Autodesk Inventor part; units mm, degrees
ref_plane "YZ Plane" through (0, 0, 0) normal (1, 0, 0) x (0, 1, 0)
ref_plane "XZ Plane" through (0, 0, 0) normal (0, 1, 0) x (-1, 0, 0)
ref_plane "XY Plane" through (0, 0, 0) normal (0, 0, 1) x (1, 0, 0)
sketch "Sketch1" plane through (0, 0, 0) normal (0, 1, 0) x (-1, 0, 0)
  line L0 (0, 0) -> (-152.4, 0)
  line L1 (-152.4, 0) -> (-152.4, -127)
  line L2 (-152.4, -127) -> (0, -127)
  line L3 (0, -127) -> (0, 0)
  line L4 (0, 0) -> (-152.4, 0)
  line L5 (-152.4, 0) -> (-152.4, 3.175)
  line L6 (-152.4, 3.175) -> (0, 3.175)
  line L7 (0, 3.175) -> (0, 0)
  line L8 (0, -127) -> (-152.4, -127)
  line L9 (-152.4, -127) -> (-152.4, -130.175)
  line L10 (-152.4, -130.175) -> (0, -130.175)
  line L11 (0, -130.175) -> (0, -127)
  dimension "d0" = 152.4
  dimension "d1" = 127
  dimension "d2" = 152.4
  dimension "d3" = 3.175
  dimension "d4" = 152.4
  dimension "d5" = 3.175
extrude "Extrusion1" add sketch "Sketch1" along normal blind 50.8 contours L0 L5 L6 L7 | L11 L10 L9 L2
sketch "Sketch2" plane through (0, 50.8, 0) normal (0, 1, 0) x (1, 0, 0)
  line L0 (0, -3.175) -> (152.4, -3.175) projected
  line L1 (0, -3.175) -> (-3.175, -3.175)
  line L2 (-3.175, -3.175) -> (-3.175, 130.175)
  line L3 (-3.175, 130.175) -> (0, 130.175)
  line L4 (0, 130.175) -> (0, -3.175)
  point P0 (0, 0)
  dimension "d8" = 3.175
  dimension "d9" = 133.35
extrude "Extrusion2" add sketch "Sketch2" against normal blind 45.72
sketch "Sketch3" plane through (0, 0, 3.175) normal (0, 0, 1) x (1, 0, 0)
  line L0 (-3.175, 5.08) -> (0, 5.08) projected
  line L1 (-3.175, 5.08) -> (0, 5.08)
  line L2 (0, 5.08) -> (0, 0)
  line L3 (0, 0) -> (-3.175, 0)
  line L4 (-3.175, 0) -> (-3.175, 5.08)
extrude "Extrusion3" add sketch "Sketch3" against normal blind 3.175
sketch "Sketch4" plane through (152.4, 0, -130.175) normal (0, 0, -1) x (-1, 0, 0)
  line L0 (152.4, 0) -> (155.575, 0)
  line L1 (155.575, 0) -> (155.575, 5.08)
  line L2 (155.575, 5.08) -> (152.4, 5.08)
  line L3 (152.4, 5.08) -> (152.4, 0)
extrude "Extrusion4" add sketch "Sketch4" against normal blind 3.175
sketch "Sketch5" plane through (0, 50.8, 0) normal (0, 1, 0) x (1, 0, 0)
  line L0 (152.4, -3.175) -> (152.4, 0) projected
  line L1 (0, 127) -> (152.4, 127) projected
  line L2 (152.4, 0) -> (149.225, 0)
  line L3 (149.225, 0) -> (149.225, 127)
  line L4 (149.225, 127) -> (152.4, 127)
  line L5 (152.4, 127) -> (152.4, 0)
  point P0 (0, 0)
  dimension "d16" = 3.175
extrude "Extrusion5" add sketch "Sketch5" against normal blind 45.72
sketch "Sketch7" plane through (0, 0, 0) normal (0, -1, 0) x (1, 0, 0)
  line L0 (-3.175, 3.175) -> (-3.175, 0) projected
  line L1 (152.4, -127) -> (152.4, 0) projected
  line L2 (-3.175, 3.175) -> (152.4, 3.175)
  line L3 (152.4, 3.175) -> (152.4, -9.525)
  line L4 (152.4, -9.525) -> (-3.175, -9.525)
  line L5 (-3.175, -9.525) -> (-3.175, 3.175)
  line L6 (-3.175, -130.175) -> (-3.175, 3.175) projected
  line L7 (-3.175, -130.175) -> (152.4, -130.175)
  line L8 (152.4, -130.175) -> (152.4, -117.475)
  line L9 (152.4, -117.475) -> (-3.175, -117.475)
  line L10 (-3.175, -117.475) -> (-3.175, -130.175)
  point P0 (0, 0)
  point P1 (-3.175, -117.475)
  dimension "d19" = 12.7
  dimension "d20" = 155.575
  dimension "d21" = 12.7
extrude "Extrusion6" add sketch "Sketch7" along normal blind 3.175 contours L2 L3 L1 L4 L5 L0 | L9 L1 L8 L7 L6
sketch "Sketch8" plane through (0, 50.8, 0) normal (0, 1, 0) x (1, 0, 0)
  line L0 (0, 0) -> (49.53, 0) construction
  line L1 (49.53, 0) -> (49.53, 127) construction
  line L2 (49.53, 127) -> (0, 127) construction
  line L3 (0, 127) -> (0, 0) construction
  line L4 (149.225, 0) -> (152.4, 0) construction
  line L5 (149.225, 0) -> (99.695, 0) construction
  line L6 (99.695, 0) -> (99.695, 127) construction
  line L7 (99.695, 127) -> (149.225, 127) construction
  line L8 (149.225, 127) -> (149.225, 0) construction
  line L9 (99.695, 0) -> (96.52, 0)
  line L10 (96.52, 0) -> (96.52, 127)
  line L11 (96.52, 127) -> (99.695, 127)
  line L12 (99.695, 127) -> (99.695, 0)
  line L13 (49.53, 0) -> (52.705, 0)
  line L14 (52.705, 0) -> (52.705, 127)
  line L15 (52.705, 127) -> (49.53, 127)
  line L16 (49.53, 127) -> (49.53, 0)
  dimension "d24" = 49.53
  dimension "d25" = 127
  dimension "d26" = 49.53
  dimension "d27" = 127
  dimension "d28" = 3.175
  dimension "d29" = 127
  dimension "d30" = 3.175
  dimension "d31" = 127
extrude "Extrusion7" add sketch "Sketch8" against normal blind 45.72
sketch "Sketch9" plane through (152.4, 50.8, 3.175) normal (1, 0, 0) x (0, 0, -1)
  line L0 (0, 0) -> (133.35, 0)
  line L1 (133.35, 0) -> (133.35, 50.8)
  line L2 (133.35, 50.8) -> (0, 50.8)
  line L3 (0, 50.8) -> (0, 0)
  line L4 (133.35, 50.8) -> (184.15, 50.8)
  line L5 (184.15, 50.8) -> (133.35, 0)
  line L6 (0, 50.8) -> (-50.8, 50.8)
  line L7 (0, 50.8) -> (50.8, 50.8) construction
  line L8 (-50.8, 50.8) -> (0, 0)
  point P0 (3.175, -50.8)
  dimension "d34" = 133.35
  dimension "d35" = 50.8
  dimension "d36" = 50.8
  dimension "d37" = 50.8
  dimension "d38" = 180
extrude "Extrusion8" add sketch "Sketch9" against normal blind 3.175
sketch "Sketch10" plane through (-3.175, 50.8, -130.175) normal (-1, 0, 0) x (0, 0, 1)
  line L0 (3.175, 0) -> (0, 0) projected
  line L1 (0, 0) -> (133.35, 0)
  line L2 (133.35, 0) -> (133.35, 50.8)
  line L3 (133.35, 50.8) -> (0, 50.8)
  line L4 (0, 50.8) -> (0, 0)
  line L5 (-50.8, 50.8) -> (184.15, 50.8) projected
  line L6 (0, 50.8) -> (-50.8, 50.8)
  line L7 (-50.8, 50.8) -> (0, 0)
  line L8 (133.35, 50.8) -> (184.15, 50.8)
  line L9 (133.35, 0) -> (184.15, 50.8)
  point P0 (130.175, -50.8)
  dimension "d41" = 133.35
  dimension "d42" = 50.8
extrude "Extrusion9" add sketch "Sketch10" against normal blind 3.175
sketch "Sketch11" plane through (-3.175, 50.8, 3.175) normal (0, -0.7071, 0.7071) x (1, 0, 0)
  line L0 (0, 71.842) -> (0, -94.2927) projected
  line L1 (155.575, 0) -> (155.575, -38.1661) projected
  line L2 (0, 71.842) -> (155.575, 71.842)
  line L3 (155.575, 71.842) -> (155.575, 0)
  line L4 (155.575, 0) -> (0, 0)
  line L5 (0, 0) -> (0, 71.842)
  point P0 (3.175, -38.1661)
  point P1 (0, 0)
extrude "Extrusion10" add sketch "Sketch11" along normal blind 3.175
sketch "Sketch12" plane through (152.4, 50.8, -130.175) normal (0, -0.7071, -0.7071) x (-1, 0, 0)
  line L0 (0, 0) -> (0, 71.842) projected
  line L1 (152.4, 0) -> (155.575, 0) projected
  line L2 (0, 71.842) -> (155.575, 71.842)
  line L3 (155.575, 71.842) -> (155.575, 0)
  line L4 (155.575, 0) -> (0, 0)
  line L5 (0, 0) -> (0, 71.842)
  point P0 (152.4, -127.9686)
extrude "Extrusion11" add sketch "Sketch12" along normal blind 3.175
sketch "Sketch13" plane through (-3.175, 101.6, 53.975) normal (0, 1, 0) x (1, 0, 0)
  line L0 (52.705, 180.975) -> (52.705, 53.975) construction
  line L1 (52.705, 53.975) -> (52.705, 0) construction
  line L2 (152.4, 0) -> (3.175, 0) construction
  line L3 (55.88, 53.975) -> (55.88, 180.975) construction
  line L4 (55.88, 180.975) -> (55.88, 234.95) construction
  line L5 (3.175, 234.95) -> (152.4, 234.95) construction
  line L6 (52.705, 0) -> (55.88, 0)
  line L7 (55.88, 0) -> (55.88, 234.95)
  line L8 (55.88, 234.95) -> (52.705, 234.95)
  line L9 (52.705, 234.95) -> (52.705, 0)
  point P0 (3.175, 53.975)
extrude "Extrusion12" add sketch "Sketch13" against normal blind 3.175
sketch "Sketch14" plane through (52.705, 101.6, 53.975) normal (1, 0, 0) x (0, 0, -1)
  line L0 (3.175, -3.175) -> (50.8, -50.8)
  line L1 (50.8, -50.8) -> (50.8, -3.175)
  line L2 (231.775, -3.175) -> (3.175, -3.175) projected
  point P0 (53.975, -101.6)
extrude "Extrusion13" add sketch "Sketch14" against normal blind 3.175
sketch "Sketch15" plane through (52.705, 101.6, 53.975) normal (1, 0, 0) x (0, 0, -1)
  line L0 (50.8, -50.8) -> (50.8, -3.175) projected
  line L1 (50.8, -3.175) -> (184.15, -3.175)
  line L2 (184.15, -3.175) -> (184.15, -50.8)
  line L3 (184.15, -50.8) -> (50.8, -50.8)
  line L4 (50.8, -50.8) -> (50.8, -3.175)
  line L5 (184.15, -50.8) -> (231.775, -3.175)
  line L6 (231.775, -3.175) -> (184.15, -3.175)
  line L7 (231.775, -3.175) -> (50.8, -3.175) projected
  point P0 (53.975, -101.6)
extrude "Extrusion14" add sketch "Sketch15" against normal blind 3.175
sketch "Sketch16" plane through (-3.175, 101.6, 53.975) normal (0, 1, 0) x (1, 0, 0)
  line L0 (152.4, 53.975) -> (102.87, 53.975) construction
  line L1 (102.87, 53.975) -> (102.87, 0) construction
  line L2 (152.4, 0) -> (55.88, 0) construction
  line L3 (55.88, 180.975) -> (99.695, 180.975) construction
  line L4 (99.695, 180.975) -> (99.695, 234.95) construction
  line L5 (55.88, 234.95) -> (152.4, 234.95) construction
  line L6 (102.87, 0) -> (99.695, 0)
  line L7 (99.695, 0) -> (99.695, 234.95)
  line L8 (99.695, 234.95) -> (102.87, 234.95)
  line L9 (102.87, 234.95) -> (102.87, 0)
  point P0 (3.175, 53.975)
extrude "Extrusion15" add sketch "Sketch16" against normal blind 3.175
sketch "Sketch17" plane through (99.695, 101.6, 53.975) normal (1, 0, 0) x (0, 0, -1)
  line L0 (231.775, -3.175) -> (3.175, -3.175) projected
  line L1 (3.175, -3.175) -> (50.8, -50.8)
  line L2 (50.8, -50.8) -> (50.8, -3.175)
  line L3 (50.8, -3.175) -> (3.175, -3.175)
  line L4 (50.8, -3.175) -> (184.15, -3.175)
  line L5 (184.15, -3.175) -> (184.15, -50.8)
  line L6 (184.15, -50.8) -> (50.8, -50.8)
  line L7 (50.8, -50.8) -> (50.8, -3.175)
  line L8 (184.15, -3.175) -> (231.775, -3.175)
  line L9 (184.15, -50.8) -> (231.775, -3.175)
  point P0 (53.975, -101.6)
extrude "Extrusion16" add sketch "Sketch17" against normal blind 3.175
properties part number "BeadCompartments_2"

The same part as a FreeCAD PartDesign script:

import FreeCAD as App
import Part
import Sketcher
Q = App.Units.Quantity


def add_polygon(sketch, points):
    """Adds a closed chain of lines whose ends are joined by coincident constraints."""
    first, n = sketch.GeometryCount, len(points)
    for a, b in zip(points, points[1:] + points[:1]):
        sketch.addGeometry(Part.LineSegment(App.Vector(*a, 0), App.Vector(*b, 0)), False)
    for i in range(n):
        sketch.addConstraint(Sketcher.Constraint("Coincident", first + i, 2, first + (i + 1) % n, 1))

doc = App.newDocument("Part")
body = doc.addObject("PartDesign::Body", "Body")
body.AllowCompound = True

# Sketch on XZ plane
sketch1 = body.newObject("Sketcher::SketchObject", "Sketch")
sketch1.AttachmentSupport = (doc.getObject("XZ_Plane"), [""])
sketch1.MapMode = "FlatFace"
add_polygon(sketch1, [(152.4, 0), (0, 0), (0, 3.2), (152.4, 3.2)])  # lines 0-3
add_polygon(sketch1, [(0, -130.2), (0, -127), (152.4, -127), (152.4, -130.2)])  # lines 4-7
sketch1.addConstraint([
    Sketcher.Constraint("Horizontal", 0),
    Sketcher.Constraint("Vertical", 1),
    Sketcher.Constraint("Horizontal", 2),
    Sketcher.Constraint("Vertical", 3),
    Sketcher.Constraint("Vertical", 4),
    Sketcher.Constraint("Horizontal", 5),
    Sketcher.Constraint("Vertical", 6),
    Sketcher.Constraint("Horizontal", 7),
    Sketcher.Constraint("Coincident", 0, 2, -1, 1),
    Sketcher.Constraint("PointOnObject", 4, 2, -2),
    Sketcher.Constraint("Vertical", 3, 2, 5, 2),
    Sketcher.Constraint("Equal", 3, 4),
    Sketcher.Constraint("DistanceX", 0, 2, 0, 1, Q("6 in")),
    Sketcher.Constraint("DistanceY", 4, 2, -1, 1, Q("5 in")),
    Sketcher.Constraint("DistanceY", 1, 1, 1, 2, Q("0.125 in")),
])
pad1 = body.newObject("PartDesign::Pad", "Pad")
pad1.Profile = sketch1
pad1.Length = Q("2 in")
pad1.Reversed = True

# Sketch on XZ plane
sketch2 = body.newObject("Sketcher::SketchObject", "Sketch001")
sketch2.AttachmentSupport = (doc.getObject("XZ_Plane"), [""])
sketch2.MapMode = "FlatFace"
sketch2.AttachmentOffset = App.Placement(App.Vector(0, 0, -2 * 25.4), App.Rotation())
add_polygon(sketch2, [(-3.2, 3.2), (0, 3.2), (0, -130.2), (-3.2, -130.2)])  # lines 0-3
sketch2.addConstraint([
    Sketcher.Constraint("Horizontal", 0),
    Sketcher.Constraint("Vertical", 1),
    Sketcher.Constraint("Horizontal", 2),
    Sketcher.Constraint("Vertical", 3),
    Sketcher.Constraint("PointOnObject", 0, 2, -2),
    Sketcher.Constraint("DistanceY", 1, 2, 1, 1, Q("5.25 in")),
    Sketcher.Constraint("DistanceX", 0, 1, 0, 2, Q("0.125 in")),
    Sketcher.Constraint("DistanceY", -1, 1, 0, 2, Q("0.125 in")),
])
pad2 = body.newObject("PartDesign::Pad", "Pad001")
pad2.Profile = sketch2
pad2.Length = Q("1.8 in")

# Sketch on XY plane
sketch3 = body.newObject("Sketcher::SketchObject", "Sketch002")
sketch3.AttachmentSupport = (doc.getObject("XY_Plane"), [""])
sketch3.MapMode = "FlatFace"
sketch3.AttachmentOffset = App.Placement(App.Vector(0, 0, 0.125 * 25.4), App.Rotation())
add_polygon(sketch3, [(0, 5.1), (-3.2, 5.1), (-3.2, 0), (0, 0)])  # lines 0-3
sketch3.addConstraint([
    Sketcher.Constraint("Horizontal", 0),
    Sketcher.Constraint("Vertical", 1),
    Sketcher.Constraint("Horizontal", 2),
    Sketcher.Constraint("Vertical", 3),
    Sketcher.Constraint("Coincident", 2, 2, -1, 1),
    Sketcher.Constraint("DistanceY", 1, 2, 1, 1, Q("0.2 in")),
    Sketcher.Constraint("DistanceX", 0, 2, 0, 1, Q("0.125 in")),
])
pad3 = body.newObject("PartDesign::Pad", "Pad002")
pad3.Profile = sketch3
pad3.Length = Q("0.125 in")
pad3.Reversed = True

# Sketch on XY plane
sketch4 = body.newObject("Sketcher::SketchObject", "Sketch003")
sketch4.AttachmentSupport = (doc.getObject("XY_Plane"), [""])
sketch4.MapMode = "FlatFace"
sketch4.AttachmentOffset = App.Placement(App.Vector(0, 0, -5.125 * 25.4), App.Rotation())
add_polygon(sketch4, [(0, 5.1), (0, 0), (-3.2, 0), (-3.2, 5.1)])  # lines 0-3
sketch4.addConstraint([
    Sketcher.Constraint("Vertical", 0),
    Sketcher.Constraint("Horizontal", 1),
    Sketcher.Constraint("Vertical", 2),
    Sketcher.Constraint("Horizontal", 3),
    Sketcher.Constraint("Coincident", 0, 2, -1, 1),
    Sketcher.Constraint("DistanceY", 0, 2, 0, 1, Q("0.2 in")),
    Sketcher.Constraint("DistanceX", 1, 2, 1, 1, Q("0.125 in")),
])
pad4 = body.newObject("PartDesign::Pad", "Pad003")
pad4.Profile = sketch4
pad4.Length = Q("0.125 in")

# Sketch on XZ plane
sketch5 = body.newObject("Sketcher::SketchObject", "Sketch004")
sketch5.AttachmentSupport = (doc.getObject("XZ_Plane"), [""])
sketch5.MapMode = "FlatFace"
sketch5.AttachmentOffset = App.Placement(App.Vector(0, 0, -2 * 25.4), App.Rotation())
add_polygon(sketch5, [(152.4, -127), (149.2, -127), (149.2, 0), (152.4, 0)])  # lines 0-3
sketch5.addConstraint([
    Sketcher.Constraint("Horizontal", 0),
    Sketcher.Constraint("Vertical", 1),
    Sketcher.Constraint("Horizontal", 2),
    Sketcher.Constraint("Vertical", 3),
    Sketcher.Constraint("PointOnObject", 1, 2, -1),
    Sketcher.Constraint("DistanceX", 0, 2, 0, 1, Q("0.125 in")),
    Sketcher.Constraint("DistanceY", 1, 1, 1, 2, Q("5 in")),
    Sketcher.Constraint("DistanceX", -1, 1, 2, 2, Q("6 in")),
])
pad5 = body.newObject("PartDesign::Pad", "Pad004")
pad5.Profile = sketch5
pad5.Length = Q("1.8 in")

# Sketch on XZ plane
sketch6 = body.newObject("Sketcher::SketchObject", "Sketch005")
sketch6.AttachmentSupport = (doc.getObject("XZ_Plane"), [""])
sketch6.MapMode = "FlatFace"
add_polygon(sketch6, [(152, 3), (-3, 3), (-3, -10), (152, -10)])  # lines 0-3
add_polygon(sketch6, [(152, -117), (-3, -117), (-3, -130), (152, -130)])  # lines 4-7
sketch6.addConstraint([
    Sketcher.Constraint("Horizontal", 0),
    Sketcher.Constraint("Vertical", 1),
    Sketcher.Constraint("Horizontal", 2),
    Sketcher.Constraint("Vertical", 3),
    Sketcher.Constraint("Horizontal", 4),
    Sketcher.Constraint("Vertical", 5),
    Sketcher.Constraint("Horizontal", 6),
    Sketcher.Constraint("Vertical", 7),
    Sketcher.Constraint("Vertical", 1, 2, 4, 2),
    Sketcher.Constraint("Vertical", 3, 2, 6, 2),
    Sketcher.Constraint("Equal", 3, 5),
    Sketcher.Constraint("DistanceY", 1, 2, 1, 1, Q("0.5 in")),
    Sketcher.Constraint("DistanceX", 0, 2, 0, 1, Q("6.125 in")),
    Sketcher.Constraint("DistanceX", -1, 1, 2, 2, Q("6 in")),
    Sketcher.Constraint("DistanceY", 4, 2, 1, 2, Q("4.25 in")),
    Sketcher.Constraint("DistanceY", -1, 1, 0, 2, Q("0.125 in")),
])
pad6 = body.newObject("PartDesign::Pad", "Pad005")
pad6.Profile = sketch6
pad6.Length = Q("0.125 in")

# Sketch on XZ plane
sketch7 = body.newObject("Sketcher::SketchObject", "Sketch006")
sketch7.AttachmentSupport = (doc.getObject("XZ_Plane"), [""])
sketch7.MapMode = "FlatFace"
sketch7.AttachmentOffset = App.Placement(App.Vector(0, 0, -2 * 25.4), App.Rotation())
add_polygon(sketch7, [(96.5, 0), (99.7, 0), (99.7, -127), (96.5, -127)])  # lines 0-3
add_polygon(sketch7, [(49.5, -127), (49.5, 0), (52.7, 0), (52.7, -127)])  # lines 4-7
sketch7.addConstraint([
    Sketcher.Constraint("Horizontal", 0),
    Sketcher.Constraint("Vertical", 1),
    Sketcher.Constraint("Horizontal", 2),
    Sketcher.Constraint("Vertical", 3),
    Sketcher.Constraint("Vertical", 4),
    Sketcher.Constraint("Horizontal", 5),
    Sketcher.Constraint("Vertical", 6),
    Sketcher.Constraint("Horizontal", 7),
    Sketcher.Constraint("PointOnObject", 0, 2, -1),
    Sketcher.Constraint("PointOnObject", 4, 2, -1),
    Sketcher.Constraint("Horizontal", 2, 2, 6, 2),
    Sketcher.Constraint("Equal", 2, 5),
    Sketcher.Constraint("DistanceY", 1, 2, 1, 1, Q("5 in")),
    Sketcher.Constraint("DistanceX", 0, 1, 0, 2, Q("0.125 in")),
    Sketcher.Constraint("DistanceX", -1, 1, 4, 2, Q("1.95 in")),
    Sketcher.Constraint("DistanceX", -1, 1, 2, 2, Q("3.8 in")),
])
pad7 = body.newObject("PartDesign::Pad", "Pad006")
pad7.Profile = sketch7
pad7.Length = Q("1.8 in")

# Sketch on YZ plane
sketch8 = body.newObject("Sketcher::SketchObject", "Sketch007")
sketch8.AttachmentSupport = (doc.getObject("YZ_Plane"), [""])
sketch8.MapMode = "FlatFace"
sketch8.AttachmentOffset = App.Placement(App.Vector(0, 0, 6 * 25.4), App.Rotation())
add_polygon(sketch8, [(102, 54), (51, 3), (51, -130), (102, -181)])  # lines 0-3
sketch8.addConstraint([
    Sketcher.Constraint("Vertical", 1),
    Sketcher.Constraint("Vertical", 3),
    Sketcher.Constraint("Perpendicular", 0, 2),
    Sketcher.Constraint("Equal", 0, 2),
    Sketcher.Constraint("DistanceX", -1, 1, 0, 2, Q("2 in")),
    Sketcher.Constraint("DistanceX", 1, 2, 2, 2, Q("2 in")),
    Sketcher.Constraint("DistanceY", 1, 2, 1, 1, Q("5.25 in")),
    Sketcher.Constraint("DistanceY", -1, 1, 0, 2, Q("0.125 in")),
])
pad8 = body.newObject("PartDesign::Pad", "Pad007")
pad8.Profile = sketch8
pad8.Length = Q("0.125 in")
pad8.Reversed = True

# Sketch on YZ plane
sketch9 = body.newObject("Sketcher::SketchObject", "Sketch008")
sketch9.AttachmentSupport = (doc.getObject("YZ_Plane"), [""])
sketch9.MapMode = "FlatFace"
sketch9.AttachmentOffset = App.Placement(App.Vector(0, 0, -0.125 * 25.4), App.Rotation())
add_polygon(sketch9, [(51, -130), (51, 3), (102, 54), (102, -181)])  # lines 0-3
sketch9.addConstraint([
    Sketcher.Constraint("Vertical", 0),
    Sketcher.Constraint("Vertical", 2),
    Sketcher.Constraint("Perpendicular", 1, 3),
    Sketcher.Constraint("Equal", 1, 3),
    Sketcher.Constraint("DistanceX", -1, 1, 0, 2, Q("2 in")),
    Sketcher.Constraint("DistanceX", 0, 2, 1, 2, Q("2 in")),
    Sketcher.Constraint("DistanceY", 0, 1, 0, 2, Q("5.25 in")),
    Sketcher.Constraint("DistanceY", -1, 1, 0, 2, Q("0.125 in")),
])
pad9 = body.newObject("PartDesign::Pad", "Pad008")
pad9.Profile = sketch9
pad9.Length = Q("0.125 in")

# Sketch on an angled plane
sketch10 = body.newObject("Sketcher::SketchObject", "Sketch009")
sketch10.Placement = App.Placement(App.Vector(-3.175, 50.8, 3.175), App.Rotation(App.Vector(1, 0, 0), App.Vector(0, 0.707106781, 0.707106781), App.Vector(0, -0.707106781, 0.707106781), "ZXY"))
add_polygon(sketch10, [(156, 72), (0, 72), (0, 0), (156, 0)])  # lines 0-3
sketch10.addConstraint([
    Sketcher.Constraint("Horizontal", 0),
    Sketcher.Constraint("Vertical", 1),
    Sketcher.Constraint("Horizontal", 2),
    Sketcher.Constraint("Vertical", 3),
    Sketcher.Constraint("Coincident", 1, 2, -1, 1),
    Sketcher.Constraint("DistanceX", 0, 2, 0, 1, Q("6.125 in")),
    Sketcher.Constraint("DistanceY", 1, 2, 1, 1, 71.842),
])
pad10 = body.newObject("PartDesign::Pad", "Pad009")
pad10.Profile = sketch10
pad10.Length = Q("0.125 in")

# Sketch on an angled plane
sketch11 = body.newObject("Sketcher::SketchObject", "Sketch010")
sketch11.Placement = App.Placement(App.Vector(152.4, 50.8, -130.175), App.Rotation(App.Vector(-1, 0, 0), App.Vector(0, 0.707106781, -0.707106781), App.Vector(0, -0.707106781, -0.707106781), "ZXY"))
add_polygon(sketch11, [(0, 72), (0, 0), (156, 0), (156, 72)])  # lines 0-3
sketch11.addConstraint([
    Sketcher.Constraint("Vertical", 0),
    Sketcher.Constraint("Horizontal", 1),
    Sketcher.Constraint("Vertical", 2),
    Sketcher.Constraint("Horizontal", 3),
    Sketcher.Constraint("Coincident", 0, 2, -1, 1),
    Sketcher.Constraint("DistanceX", 1, 1, 1, 2, Q("6.125 in")),
    Sketcher.Constraint("DistanceY", 0, 2, 0, 1, 71.842),
])
pad11 = body.newObject("PartDesign::Pad", "Pad010")
pad11.Profile = sketch11
pad11.Length = Q("0.125 in")

# Sketch on XZ plane
sketch12 = body.newObject("Sketcher::SketchObject", "Sketch011")
sketch12.AttachmentSupport = (doc.getObject("XZ_Plane"), [""])
sketch12.MapMode = "FlatFace"
sketch12.AttachmentOffset = App.Placement(App.Vector(0, 0, -4 * 25.4), App.Rotation())
add_polygon(sketch12, [(49.5, -181), (49.5, 54), (52.7, 54), (52.7, -181)])  # lines 0-3
sketch12.addConstraint([
    Sketcher.Constraint("Vertical", 0),
    Sketcher.Constraint("Horizontal", 1),
    Sketcher.Constraint("Vertical", 2),
    Sketcher.Constraint("Horizontal", 3),
    Sketcher.Constraint("DistanceY", 0, 1, 0, 2, Q("9.25 in")),
    Sketcher.Constraint("DistanceX", 1, 1, 1, 2, Q("0.125 in")),
    Sketcher.Constraint("DistanceX", -1, 1, 0, 2, Q("1.95 in")),
    Sketcher.Constraint("DistanceY", -1, 1, 0, 2, Q("2.125 in")),
])
pad12 = body.newObject("PartDesign::Pad", "Pad011")
pad12.Profile = sketch12
pad12.Length = Q("0.125 in")

# Sketch on YZ plane
sketch13 = body.newObject("Sketcher::SketchObject", "Sketch012")
sketch13.AttachmentSupport = (doc.getObject("YZ_Plane"), [""])
sketch13.MapMode = "FlatFace"
sketch13.AttachmentOffset = App.Placement(App.Vector(0, 0, 2.075 * 25.4), App.Rotation())
add_polygon(sketch13, [(98, 3), (98, 51), (51, 3)])  # lines 0-2
sketch13.addConstraint([
    Sketcher.Constraint("Vertical", 0),
    Sketcher.Constraint("Horizontal", 2),
    Sketcher.Constraint("Equal", 2, 0),
    Sketcher.Constraint("DistanceY", -1, 1, 0, 2, Q("2 in")),
    Sketcher.Constraint("DistanceX", -1, 1, 1, 2, Q("2 in")),
    Sketcher.Constraint("DistanceX", 2, 1, 2, 2, Q("1.875 in")),
])
pad13 = body.newObject("PartDesign::Pad", "Pad012")
pad13.Profile = sketch13
pad13.Length = Q("0.125 in")
pad13.Reversed = True

# Sketch on YZ plane
sketch14 = body.newObject("Sketcher::SketchObject", "Sketch013")
sketch14.AttachmentSupport = (doc.getObject("YZ_Plane"), [""])
sketch14.MapMode = "FlatFace"
sketch14.AttachmentOffset = App.Placement(App.Vector(0, 0, 2.075 * 25.4), App.Rotation())
add_polygon(sketch14, [(98, 3), (51, 3), (51, -130), (98, -178)])  # lines 0-3
sketch14.addConstraint([
    Sketcher.Constraint("Horizontal", 0),
    Sketcher.Constraint("Vertical", 1),
    Sketcher.Constraint("Vertical", 3),
    Sketcher.Constraint("DistanceX", -1, 1, 0, 2, Q("2 in")),
    Sketcher.Constraint("DistanceY", 2, 2, -1, 1, Q("7 in")),
    Sketcher.Constraint("Angle", 2, Q("-45 deg")),
    Sketcher.Constraint("DistanceY", 1, 2, 1, 1, Q("5.25 in")),
    Sketcher.Constraint("DistanceX", 0, 2, 0, 1, Q("1.875 in")),
])
pad14 = body.newObject("PartDesign::Pad", "Pad013")
pad14.Profile = sketch14
pad14.Length = Q("0.125 in")
pad14.Reversed = True

# Sketch on XZ plane
sketch15 = body.newObject("Sketcher::SketchObject", "Sketch014")
sketch15.AttachmentSupport = (doc.getObject("XZ_Plane"), [""])
sketch15.MapMode = "FlatFace"
sketch15.AttachmentOffset = App.Placement(App.Vector(0, 0, -4 * 25.4), App.Rotation())
add_polygon(sketch15, [(96.5, 54), (99.7, 54), (99.7, -181), (96.5, -181)])  # lines 0-3
sketch15.addConstraint([
    Sketcher.Constraint("Horizontal", 0),
    Sketcher.Constraint("Vertical", 1),
    Sketcher.Constraint("Horizontal", 2),
    Sketcher.Constraint("Vertical", 3),
    Sketcher.Constraint("DistanceY", 1, 2, 1, 1, Q("9.25 in")),
    Sketcher.Constraint("DistanceX", -1, 1, 2, 2, Q("3.8 in")),
    Sketcher.Constraint("DistanceX", 0, 1, 0, 2, Q("0.125 in")),
    Sketcher.Constraint("DistanceY", -1, 1, 0, 2, Q("2.125 in")),
])
pad15 = body.newObject("PartDesign::Pad", "Pad014")
pad15.Profile = sketch15
pad15.Length = Q("0.125 in")

# Sketch on YZ plane
sketch16 = body.newObject("Sketcher::SketchObject", "Sketch015")
sketch16.AttachmentSupport = (doc.getObject("YZ_Plane"), [""])
sketch16.MapMode = "FlatFace"
sketch16.AttachmentOffset = App.Placement(App.Vector(0, 0, 3.925 * 25.4), App.Rotation())
add_polygon(sketch16, [(51, -130), (98, -178), (98, 51), (51, 3)])  # lines 0-3
sketch16.addConstraint([
    Sketcher.Constraint("Vertical", 1),
    Sketcher.Constraint("Vertical", 3),
    Sketcher.Constraint("Perpendicular", 0, 2),
    Sketcher.Constraint("Equal", 0, 2),
    Sketcher.Constraint("DistanceY", 1, 1, 1, 2, Q("9 in")),
    Sketcher.Constraint("DistanceY", 0, 2, -1, 1, Q("7 in")),
    Sketcher.Constraint("DistanceX", -1, 1, 2, 2, Q("2 in")),
    Sketcher.Constraint("DistanceY", 3, 2, 3, 1, Q("5.25 in")),
])
pad16 = body.newObject("PartDesign::Pad", "Pad015")
pad16.Profile = sketch16
pad16.Length = Q("0.125 in")
pad16.Reversed = True

doc.recompute()
